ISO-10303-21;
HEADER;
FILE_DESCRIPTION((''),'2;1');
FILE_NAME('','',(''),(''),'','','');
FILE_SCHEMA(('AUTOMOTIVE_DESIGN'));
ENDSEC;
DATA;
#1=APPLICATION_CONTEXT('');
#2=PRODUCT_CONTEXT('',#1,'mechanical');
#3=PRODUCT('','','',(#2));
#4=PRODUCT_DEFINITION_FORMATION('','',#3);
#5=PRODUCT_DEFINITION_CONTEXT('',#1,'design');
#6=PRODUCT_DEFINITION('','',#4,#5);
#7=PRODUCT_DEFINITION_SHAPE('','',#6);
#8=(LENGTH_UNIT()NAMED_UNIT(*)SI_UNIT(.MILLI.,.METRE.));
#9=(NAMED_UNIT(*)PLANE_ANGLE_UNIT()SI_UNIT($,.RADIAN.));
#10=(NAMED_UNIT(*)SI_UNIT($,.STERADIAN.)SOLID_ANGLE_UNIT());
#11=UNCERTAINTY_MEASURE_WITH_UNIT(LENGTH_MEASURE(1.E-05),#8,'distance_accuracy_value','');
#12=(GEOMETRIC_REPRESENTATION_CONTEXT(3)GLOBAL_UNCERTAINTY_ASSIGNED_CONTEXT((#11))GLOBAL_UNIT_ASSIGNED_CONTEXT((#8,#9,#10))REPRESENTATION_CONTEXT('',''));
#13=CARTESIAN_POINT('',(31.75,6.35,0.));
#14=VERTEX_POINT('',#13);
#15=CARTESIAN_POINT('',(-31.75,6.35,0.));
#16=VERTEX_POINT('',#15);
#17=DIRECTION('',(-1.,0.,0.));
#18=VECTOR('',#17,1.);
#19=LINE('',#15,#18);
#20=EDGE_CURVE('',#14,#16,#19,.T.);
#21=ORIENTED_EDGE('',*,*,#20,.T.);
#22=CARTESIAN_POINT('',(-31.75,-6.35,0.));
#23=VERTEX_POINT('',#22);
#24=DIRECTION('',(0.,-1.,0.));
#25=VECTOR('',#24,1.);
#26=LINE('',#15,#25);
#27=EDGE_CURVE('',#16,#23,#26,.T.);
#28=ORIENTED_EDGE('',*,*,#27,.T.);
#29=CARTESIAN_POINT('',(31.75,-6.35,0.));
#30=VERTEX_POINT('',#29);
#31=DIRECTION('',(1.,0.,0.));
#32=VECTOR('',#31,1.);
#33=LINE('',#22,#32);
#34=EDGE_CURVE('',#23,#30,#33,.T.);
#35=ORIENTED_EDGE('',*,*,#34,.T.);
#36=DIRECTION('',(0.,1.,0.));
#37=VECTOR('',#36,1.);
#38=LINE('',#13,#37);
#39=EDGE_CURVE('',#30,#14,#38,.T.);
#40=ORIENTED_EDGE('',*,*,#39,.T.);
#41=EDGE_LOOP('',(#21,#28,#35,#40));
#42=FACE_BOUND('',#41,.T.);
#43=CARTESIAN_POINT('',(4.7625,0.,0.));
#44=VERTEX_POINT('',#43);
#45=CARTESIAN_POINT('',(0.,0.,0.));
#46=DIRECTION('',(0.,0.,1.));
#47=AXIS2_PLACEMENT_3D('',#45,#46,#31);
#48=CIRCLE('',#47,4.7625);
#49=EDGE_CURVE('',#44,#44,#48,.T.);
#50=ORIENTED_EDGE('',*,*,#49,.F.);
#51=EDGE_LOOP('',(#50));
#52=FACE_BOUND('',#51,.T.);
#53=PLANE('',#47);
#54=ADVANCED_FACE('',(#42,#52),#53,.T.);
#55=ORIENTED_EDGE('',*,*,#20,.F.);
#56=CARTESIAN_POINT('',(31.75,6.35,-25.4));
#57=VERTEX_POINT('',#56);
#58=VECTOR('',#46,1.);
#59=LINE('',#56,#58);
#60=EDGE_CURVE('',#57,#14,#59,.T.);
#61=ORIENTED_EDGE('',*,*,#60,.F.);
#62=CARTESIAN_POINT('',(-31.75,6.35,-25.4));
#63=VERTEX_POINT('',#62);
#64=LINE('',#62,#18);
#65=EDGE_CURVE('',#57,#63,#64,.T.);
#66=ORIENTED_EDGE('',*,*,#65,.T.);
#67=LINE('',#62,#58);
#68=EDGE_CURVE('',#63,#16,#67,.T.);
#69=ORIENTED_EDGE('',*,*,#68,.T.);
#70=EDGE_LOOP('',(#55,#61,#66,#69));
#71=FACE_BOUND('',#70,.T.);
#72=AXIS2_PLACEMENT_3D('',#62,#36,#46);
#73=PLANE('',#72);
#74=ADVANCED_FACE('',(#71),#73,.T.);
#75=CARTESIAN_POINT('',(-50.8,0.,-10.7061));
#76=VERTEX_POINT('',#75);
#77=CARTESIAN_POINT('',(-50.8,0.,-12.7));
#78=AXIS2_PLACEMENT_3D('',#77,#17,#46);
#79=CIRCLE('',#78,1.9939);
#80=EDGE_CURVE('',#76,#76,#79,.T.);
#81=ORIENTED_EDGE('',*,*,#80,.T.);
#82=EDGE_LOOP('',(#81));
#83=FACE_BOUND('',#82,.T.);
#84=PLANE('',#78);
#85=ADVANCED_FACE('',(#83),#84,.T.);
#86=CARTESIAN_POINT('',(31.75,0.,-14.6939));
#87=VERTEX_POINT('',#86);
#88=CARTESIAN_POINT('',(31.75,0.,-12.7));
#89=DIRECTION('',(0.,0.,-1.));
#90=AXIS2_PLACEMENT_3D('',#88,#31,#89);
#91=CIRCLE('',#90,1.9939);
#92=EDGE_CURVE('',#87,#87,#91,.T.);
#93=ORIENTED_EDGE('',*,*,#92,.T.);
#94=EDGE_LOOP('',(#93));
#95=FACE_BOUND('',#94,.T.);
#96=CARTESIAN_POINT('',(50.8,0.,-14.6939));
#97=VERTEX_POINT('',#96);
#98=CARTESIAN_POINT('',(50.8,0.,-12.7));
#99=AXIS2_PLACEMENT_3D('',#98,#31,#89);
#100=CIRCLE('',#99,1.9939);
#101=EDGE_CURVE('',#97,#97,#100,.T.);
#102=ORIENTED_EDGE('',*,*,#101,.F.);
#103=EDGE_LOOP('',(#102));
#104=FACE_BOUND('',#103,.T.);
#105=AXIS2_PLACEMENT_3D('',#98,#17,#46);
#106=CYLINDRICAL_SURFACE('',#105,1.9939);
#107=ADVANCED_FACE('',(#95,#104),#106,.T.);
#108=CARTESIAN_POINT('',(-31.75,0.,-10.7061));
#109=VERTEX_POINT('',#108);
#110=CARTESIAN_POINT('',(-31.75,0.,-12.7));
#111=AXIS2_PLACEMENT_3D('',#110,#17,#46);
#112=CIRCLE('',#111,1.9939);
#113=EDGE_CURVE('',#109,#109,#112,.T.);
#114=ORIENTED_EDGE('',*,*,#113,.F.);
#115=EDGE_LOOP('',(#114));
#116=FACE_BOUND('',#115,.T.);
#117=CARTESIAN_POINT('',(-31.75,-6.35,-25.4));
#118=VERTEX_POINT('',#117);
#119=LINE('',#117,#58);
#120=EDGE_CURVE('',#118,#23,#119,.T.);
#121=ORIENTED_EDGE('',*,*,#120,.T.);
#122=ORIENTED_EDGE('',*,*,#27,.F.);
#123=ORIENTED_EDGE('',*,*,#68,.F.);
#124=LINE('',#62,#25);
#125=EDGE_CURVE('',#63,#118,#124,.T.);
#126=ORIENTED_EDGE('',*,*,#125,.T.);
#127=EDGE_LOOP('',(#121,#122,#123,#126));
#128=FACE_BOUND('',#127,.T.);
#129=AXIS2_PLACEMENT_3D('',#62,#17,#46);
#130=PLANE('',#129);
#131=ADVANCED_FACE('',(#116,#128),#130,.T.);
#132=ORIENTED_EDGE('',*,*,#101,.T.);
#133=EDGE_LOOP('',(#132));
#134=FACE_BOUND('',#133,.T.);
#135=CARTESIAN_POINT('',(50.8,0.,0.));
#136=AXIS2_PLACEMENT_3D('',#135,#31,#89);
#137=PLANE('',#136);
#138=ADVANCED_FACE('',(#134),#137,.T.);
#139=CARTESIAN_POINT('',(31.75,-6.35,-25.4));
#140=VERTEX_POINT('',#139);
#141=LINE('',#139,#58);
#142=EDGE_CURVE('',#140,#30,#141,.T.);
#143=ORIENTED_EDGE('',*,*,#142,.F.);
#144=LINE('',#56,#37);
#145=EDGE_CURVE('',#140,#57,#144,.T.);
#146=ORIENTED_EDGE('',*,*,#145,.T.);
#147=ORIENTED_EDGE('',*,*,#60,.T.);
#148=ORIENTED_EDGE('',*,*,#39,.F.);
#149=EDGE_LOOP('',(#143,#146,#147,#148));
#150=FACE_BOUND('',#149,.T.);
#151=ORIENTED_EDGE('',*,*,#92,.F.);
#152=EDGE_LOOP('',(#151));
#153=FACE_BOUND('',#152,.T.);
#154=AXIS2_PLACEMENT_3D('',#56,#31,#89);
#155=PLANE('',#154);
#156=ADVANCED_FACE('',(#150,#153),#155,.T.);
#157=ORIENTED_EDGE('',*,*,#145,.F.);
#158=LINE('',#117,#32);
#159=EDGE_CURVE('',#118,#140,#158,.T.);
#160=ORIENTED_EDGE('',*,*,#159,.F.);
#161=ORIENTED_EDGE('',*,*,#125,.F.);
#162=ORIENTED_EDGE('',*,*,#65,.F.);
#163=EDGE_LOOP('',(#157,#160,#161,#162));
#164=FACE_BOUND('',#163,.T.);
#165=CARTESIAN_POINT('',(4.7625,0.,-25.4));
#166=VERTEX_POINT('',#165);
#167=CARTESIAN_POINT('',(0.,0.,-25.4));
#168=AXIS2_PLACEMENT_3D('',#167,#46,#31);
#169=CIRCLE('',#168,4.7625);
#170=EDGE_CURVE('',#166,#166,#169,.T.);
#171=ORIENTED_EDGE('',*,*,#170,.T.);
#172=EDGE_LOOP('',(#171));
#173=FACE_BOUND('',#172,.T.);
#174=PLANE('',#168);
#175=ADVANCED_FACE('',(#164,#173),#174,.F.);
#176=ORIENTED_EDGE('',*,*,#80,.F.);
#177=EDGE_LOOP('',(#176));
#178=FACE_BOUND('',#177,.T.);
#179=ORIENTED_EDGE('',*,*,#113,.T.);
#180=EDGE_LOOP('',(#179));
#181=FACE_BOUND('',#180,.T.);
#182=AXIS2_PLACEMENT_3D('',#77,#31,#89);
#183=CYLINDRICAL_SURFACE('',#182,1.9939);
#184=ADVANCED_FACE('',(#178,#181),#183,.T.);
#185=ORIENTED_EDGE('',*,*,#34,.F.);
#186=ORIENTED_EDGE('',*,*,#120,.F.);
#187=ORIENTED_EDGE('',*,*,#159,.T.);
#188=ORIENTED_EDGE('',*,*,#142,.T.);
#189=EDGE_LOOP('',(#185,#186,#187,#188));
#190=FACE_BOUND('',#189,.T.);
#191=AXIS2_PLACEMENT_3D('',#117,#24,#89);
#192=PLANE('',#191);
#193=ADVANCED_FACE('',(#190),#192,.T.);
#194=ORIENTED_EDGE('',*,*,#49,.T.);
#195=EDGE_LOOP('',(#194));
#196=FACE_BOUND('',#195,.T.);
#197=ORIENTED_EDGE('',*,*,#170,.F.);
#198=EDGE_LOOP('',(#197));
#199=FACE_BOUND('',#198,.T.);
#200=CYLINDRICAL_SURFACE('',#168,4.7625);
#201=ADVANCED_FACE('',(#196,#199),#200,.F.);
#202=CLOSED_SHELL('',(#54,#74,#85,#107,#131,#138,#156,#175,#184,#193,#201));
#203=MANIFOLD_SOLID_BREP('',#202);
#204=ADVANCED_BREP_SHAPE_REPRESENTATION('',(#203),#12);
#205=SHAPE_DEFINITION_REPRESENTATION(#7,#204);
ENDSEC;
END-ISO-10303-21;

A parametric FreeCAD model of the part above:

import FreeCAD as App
import Part
import Sketcher

V = App.Vector
Q = App.Units.Quantity

doc = App.newDocument("Part")
body = doc.addObject("PartDesign::Body", "Body")

# Sketch on XY plane
sketch1 = body.newObject("Sketcher::SketchObject", "Sketch")
sketch1.AttachmentSupport = (doc.getObject("XY_Plane"), [""])
sketch1.MapMode = "FlatFace"
sketch1.addGeometry(Part.LineSegment(V(-31.75, 6.35, 0), V(-31.75, -6.35, 0)), False)
sketch1.addGeometry(Part.LineSegment(V(-31.75, -6.35, 0), V(31.75, -6.35, 0)), False)
sketch1.addGeometry(Part.LineSegment(V(31.75, -6.35, 0), V(31.75, 6.35, 0)), False)
sketch1.addGeometry(Part.LineSegment(V(31.75, 6.35, 0), V(-31.75, 6.35, 0)), False)
sketch1.addGeometry(Part.Circle(V(0, 0, 0), V(0, 0, 1), 4.7625), False)
sketch1.addConstraint(Sketcher.Constraint("Coincident", 0, 2, 1, 1))
sketch1.addConstraint(Sketcher.Constraint("Coincident", 1, 2, 2, 1))
sketch1.addConstraint(Sketcher.Constraint("Coincident", 2, 2, 3, 1))
sketch1.addConstraint(Sketcher.Constraint("Coincident", 3, 2, 0, 1))
sketch1.addConstraint(Sketcher.Constraint("Vertical", 0))
sketch1.addConstraint(Sketcher.Constraint("Horizontal", 1))
sketch1.addConstraint(Sketcher.Constraint("Vertical", 2))
sketch1.addConstraint(Sketcher.Constraint("Horizontal", 3))
sketch1.addConstraint(Sketcher.Constraint("Coincident", 4, 3, -1, 1))
sketch1.addConstraint(Sketcher.Constraint("Symmetric", 0, 2, 2, 2, -1, 1))
sketch1.addConstraint(Sketcher.Constraint("Diameter", 4, Q("0.375 in")))
sketch1.addConstraint(Sketcher.Constraint("DistanceX", 1, 1, 1, 2, Q("2.5 in")))
sketch1.addConstraint(Sketcher.Constraint("DistanceY", 0, 2, 0, 1, Q("0.5 in")))
pad1 = body.newObject("PartDesign::Pad", "Pad")
pad1.Profile = sketch1
pad1.Length = Q("1 in")
pad1.Reversed = True

# Sketch on YZ plane
sketch2 = body.newObject("Sketcher::SketchObject", "Sketch001")
sketch2.AttachmentSupport = (doc.getObject("YZ_Plane"), [""])
sketch2.MapMode = "FlatFace"
sketch2.AttachmentOffset = App.Placement(V(0, 0, 1.25 * 25.4), App.Rotation())
sketch2.addGeometry(Part.Circle(V(0, -12.7, 0), V(0, 0, 1), 1.9939), False)
sketch2.addConstraint(Sketcher.Constraint("PointOnObject", 0, 3, -2))
sketch2.addConstraint(Sketcher.Constraint("Diameter", 0, Q("0.157 in")))
sketch2.addConstraint(Sketcher.Constraint("DistanceY", 0, 3, -1, 1, Q("0.5 in")))
pad2 = body.newObject("PartDesign::Pad", "Pad001")
pad2.Profile = sketch2
pad2.Length = Q("0.75 in")

# Sketch on YZ plane
sketch3 = body.newObject("Sketcher::SketchObject", "Sketch002")
sketch3.AttachmentSupport = (doc.getObject("YZ_Plane"), [""])
sketch3.MapMode = "FlatFace"
sketch3.AttachmentOffset = App.Placement(V(0, 0, -1.25 * 25.4), App.Rotation())
sketch3.addGeometry(Part.Circle(V(0, -12.7, 0), V(0, 0, 1), 1.9939), False)
sketch3.addConstraint(Sketcher.Constraint("PointOnObject", 0, 3, -2))
sketch3.addConstraint(Sketcher.Constraint("Diameter", 0, Q("0.157 in")))
sketch3.addConstraint(Sketcher.Constraint("DistanceY", 0, 3, -1, 1, Q("0.5 in")))
pad3 = body.newObject("PartDesign::Pad", "Pad002")
pad3.Profile = sketch3
pad3.Length = Q("0.75 in")
pad3.Reversed = True

doc.recompute()
